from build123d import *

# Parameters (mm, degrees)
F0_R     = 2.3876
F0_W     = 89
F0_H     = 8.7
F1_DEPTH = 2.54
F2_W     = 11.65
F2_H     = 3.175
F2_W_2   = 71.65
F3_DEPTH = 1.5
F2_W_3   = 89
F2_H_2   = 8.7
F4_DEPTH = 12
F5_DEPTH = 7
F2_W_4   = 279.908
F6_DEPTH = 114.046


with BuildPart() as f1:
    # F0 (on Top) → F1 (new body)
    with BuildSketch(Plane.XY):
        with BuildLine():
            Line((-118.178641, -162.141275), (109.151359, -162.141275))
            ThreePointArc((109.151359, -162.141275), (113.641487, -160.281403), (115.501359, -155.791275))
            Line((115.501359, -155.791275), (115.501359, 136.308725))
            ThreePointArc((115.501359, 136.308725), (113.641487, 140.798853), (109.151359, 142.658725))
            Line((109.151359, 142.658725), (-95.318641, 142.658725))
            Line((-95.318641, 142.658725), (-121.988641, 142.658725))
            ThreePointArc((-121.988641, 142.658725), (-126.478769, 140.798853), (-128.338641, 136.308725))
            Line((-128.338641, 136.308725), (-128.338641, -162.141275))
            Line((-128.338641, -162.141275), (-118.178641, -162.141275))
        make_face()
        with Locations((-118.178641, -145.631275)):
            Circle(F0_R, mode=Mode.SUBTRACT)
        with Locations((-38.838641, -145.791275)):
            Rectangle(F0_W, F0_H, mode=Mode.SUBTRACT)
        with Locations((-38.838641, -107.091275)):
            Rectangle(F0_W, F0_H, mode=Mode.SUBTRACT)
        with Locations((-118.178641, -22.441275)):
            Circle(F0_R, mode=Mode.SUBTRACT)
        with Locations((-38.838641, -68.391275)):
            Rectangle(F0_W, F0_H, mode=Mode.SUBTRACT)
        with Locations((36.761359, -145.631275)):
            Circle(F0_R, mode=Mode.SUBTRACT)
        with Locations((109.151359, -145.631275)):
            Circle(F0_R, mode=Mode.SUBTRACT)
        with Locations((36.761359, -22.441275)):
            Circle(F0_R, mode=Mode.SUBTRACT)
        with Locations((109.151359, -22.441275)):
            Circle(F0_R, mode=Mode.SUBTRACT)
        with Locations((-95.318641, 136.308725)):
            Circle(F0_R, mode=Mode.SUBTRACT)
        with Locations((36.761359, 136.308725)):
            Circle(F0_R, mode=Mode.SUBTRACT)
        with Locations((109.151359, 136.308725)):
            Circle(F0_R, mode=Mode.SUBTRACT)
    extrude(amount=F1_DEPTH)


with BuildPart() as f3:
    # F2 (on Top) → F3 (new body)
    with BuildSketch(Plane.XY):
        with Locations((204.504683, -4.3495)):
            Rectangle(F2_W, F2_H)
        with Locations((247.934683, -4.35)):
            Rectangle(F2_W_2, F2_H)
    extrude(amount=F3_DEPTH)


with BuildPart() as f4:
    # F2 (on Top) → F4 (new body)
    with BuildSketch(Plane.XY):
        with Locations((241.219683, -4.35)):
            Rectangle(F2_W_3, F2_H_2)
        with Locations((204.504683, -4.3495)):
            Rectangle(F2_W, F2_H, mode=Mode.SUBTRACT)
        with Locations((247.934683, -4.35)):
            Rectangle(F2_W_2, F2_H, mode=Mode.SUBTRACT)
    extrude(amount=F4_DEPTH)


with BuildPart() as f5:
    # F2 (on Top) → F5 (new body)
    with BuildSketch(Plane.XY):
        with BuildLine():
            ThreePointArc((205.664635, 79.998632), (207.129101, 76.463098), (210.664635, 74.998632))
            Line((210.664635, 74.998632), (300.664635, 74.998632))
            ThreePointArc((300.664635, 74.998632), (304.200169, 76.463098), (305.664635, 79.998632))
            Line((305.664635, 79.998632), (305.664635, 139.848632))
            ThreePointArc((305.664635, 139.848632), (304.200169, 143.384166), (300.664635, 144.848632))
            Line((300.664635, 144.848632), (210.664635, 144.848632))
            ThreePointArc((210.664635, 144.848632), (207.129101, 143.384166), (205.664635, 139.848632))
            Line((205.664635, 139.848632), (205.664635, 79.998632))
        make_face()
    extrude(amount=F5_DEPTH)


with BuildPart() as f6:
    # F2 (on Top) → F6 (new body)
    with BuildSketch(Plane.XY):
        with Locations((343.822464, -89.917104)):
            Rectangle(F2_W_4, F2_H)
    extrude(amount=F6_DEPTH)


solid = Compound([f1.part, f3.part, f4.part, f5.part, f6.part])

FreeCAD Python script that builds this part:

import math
import FreeCAD as App
import Part
import Sketcher

V = App.Vector
Q = App.Units.Quantity

doc = App.newDocument("Part")
body = doc.addObject("PartDesign::Body", "Body")

sketch1 = body.newObject("Sketcher::SketchObject", "Sketch")
sketch1.AttachmentSupport = (doc.getObject("XY_Plane"), [""])
sketch1.MapMode = "FlatFace"
sketch1.addGeometry(Part.ArcOfCircle(Part.Circle(V(109.2, -155.8, 0), V(0, 0, 1), 6.4), math.radians(-90), math.radians(0)), False)
sketch1.addGeometry(Part.LineSegment(V(115.5, -155.8, 0), V(115.5, 136.3, 0)), False)
sketch1.addGeometry(Part.ArcOfCircle(Part.Circle(V(109.2, 136.3, 0), V(0, 0, 1), 6.4), math.radians(0), math.radians(90)), False)
sketch1.addGeometry(Part.LineSegment(V(109.2, 142.7, 0), V(-122, 142.7, 0)), False)
sketch1.addGeometry(Part.ArcOfCircle(Part.Circle(V(-122, 136.3, 0), V(0, 0, 1), 6.4), math.radians(90), math.radians(180)), False)
sketch1.addGeometry(Part.LineSegment(V(-128.3, 136.3, 0), V(-128.3, -162.1, 0)), False)
sketch1.addGeometry(Part.LineSegment(V(-128.3, -162.1, 0), V(109.2, -162.1, 0)), False)
sketch1.addGeometry(Part.Circle(V(-118.2, -145.6, 0), V(0, 0, 1), 2.4), False)
sketch1.addGeometry(Part.LineSegment(V(5.7, -150.1, 0), V(-83.3, -150.1, 0)), False)
sketch1.addGeometry(Part.LineSegment(V(-83.3, -150.1, 0), V(-83.3, -141.4, 0)), False)
sketch1.addGeometry(Part.LineSegment(V(-83.3, -141.4, 0), V(5.7, -141.4, 0)), False)
sketch1.addGeometry(Part.LineSegment(V(5.7, -141.4, 0), V(5.7, -150.1, 0)), False)
sketch1.addGeometry(Part.LineSegment(V(5.7, -111.4, 0), V(-83.3, -111.4, 0)), False)
sketch1.addGeometry(Part.LineSegment(V(-83.3, -111.4, 0), V(-83.3, -102.7, 0)), False)
sketch1.addGeometry(Part.LineSegment(V(-83.3, -102.7, 0), V(5.7, -102.7, 0)), False)
sketch1.addGeometry(Part.LineSegment(V(5.7, -102.7, 0), V(5.7, -111.4, 0)), False)
sketch1.addGeometry(Part.Circle(V(-118.2, -22.4, 0), V(0, 0, 1), 2.4), False)
sketch1.addGeometry(Part.LineSegment(V(5.7, -72.7, 0), V(-83.3, -72.7, 0)), False)
sketch1.addGeometry(Part.LineSegment(V(-83.3, -72.7, 0), V(-83.3, -64, 0)), False)
sketch1.addGeometry(Part.LineSegment(V(-83.3, -64, 0), V(5.7, -64, 0)), False)
sketch1.addGeometry(Part.LineSegment(V(5.7, -64, 0), V(5.7, -72.7, 0)), False)
sketch1.addGeometry(Part.Circle(V(36.8, -145.6, 0), V(0, 0, 1), 2.4), False)
sketch1.addGeometry(Part.Circle(V(109.2, -145.6, 0), V(0, 0, 1), 2.4), False)
sketch1.addGeometry(Part.Circle(V(36.8, -22.4, 0), V(0, 0, 1), 2.4), False)
sketch1.addGeometry(Part.Circle(V(109.2, -22.4, 0), V(0, 0, 1), 2.4), False)
sketch1.addGeometry(Part.Circle(V(-95.3, 136.3, 0), V(0, 0, 1), 2.4), False)
sketch1.addGeometry(Part.Circle(V(36.8, 136.3, 0), V(0, 0, 1), 2.4), False)
sketch1.addGeometry(Part.Circle(V(109.2, 136.3, 0), V(0, 0, 1), 2.4), False)
sketch1.addConstraint(Sketcher.Constraint("Tangent", 0, 2, 1, 1))
sketch1.addConstraint(Sketcher.Constraint("Tangent", 1, 2, 2, 1))
sketch1.addConstraint(Sketcher.Constraint("Tangent", 2, 2, 3, 1))
sketch1.addConstraint(Sketcher.Constraint("Tangent", 3, 2, 4, 1))
sketch1.addConstraint(Sketcher.Constraint("Tangent", 4, 2, 5, 1))
sketch1.addConstraint(Sketcher.Constraint("Coincident", 5, 2, 6, 1))
sketch1.addConstraint(Sketcher.Constraint("Tangent", 6, 2, 0, 1))
sketch1.addConstraint(Sketcher.Constraint("Coincident", 8, 2, 9, 1))
sketch1.addConstraint(Sketcher.Constraint("Coincident", 9, 2, 10, 1))
sketch1.addConstraint(Sketcher.Constraint("Coincident", 10, 2, 11, 1))
sketch1.addConstraint(Sketcher.Constraint("Coincident", 11, 2, 8, 1))
sketch1.addConstraint(Sketcher.Constraint("Coincident", 12, 2, 13, 1))
sketch1.addConstraint(Sketcher.Constraint("Coincident", 13, 2, 14, 1))
sketch1.addConstraint(Sketcher.Constraint("Coincident", 14, 2, 15, 1))
sketch1.addConstraint(Sketcher.Constraint("Coincident", 15, 2, 12, 1))
sketch1.addConstraint(Sketcher.Constraint("Coincident", 17, 2, 18, 1))
sketch1.addConstraint(Sketcher.Constraint("Coincident", 18, 2, 19, 1))
sketch1.addConstraint(Sketcher.Constraint("Coincident", 19, 2, 20, 1))
sketch1.addConstraint(Sketcher.Constraint("Coincident", 20, 2, 17, 1))
sketch1.addConstraint(Sketcher.Constraint("Vertical", 1))
sketch1.addConstraint(Sketcher.Constraint("Horizontal", 3))
sketch1.addConstraint(Sketcher.Constraint("Vertical", 5))
sketch1.addConstraint(Sketcher.Constraint("Horizontal", 6))
sketch1.addConstraint(Sketcher.Constraint("Horizontal", 8))
sketch1.addConstraint(Sketcher.Constraint("Vertical", 9))
sketch1.addConstraint(Sketcher.Constraint("Horizontal", 10))
sketch1.addConstraint(Sketcher.Constraint("Vertical", 11))
sketch1.addConstraint(Sketcher.Constraint("Horizontal", 12))
sketch1.addConstraint(Sketcher.Constraint("Vertical", 13))
sketch1.addConstraint(Sketcher.Constraint("Horizontal", 14))
sketch1.addConstraint(Sketcher.Constraint("Vertical", 15))
sketch1.addConstraint(Sketcher.Constraint("Horizontal", 17))
sketch1.addConstraint(Sketcher.Constraint("Vertical", 18))
sketch1.addConstraint(Sketcher.Constraint("Horizontal", 19))
sketch1.addConstraint(Sketcher.Constraint("Vertical", 20))
sketch1.addConstraint(Sketcher.Constraint("Coincident", 27, 3, 2, 3))
sketch1.addConstraint(Sketcher.Constraint("Equal", 0, 2))
sketch1.addConstraint(Sketcher.Constraint("Equal", 2, 4))
sketch1.addConstraint(Sketcher.Constraint("Equal", 7, 16))
sketch1.addConstraint(Sketcher.Constraint("Equal", 16, 21))
sketch1.addConstraint(Sketcher.Constraint("Equal", 21, 22))
sketch1.addConstraint(Sketcher.Constraint("Equal", 22, 23))
sketch1.addConstraint(Sketcher.Constraint("Equal", 23, 24))
sketch1.addConstraint(Sketcher.Constraint("Equal", 24, 25))
sketch1.addConstraint(Sketcher.Constraint("Equal", 25, 26))
sketch1.addConstraint(Sketcher.Constraint("Equal", 26, 27))
sketch1.addConstraint(Sketcher.Constraint("Horizontal", 7, 3, 21, 3))
sketch1.addConstraint(Sketcher.Constraint("Horizontal", 21, 3, 22, 3))
sketch1.addConstraint(Sketcher.Constraint("Horizontal", 16, 3, 23, 3))
sketch1.addConstraint(Sketcher.Constraint("Horizontal", 23, 3, 24, 3))
sketch1.addConstraint(Sketcher.Constraint("Horizontal", 4, 3, 25, 3))
sketch1.addConstraint(Sketcher.Constraint("Horizontal", 25, 3, 26, 3))
sketch1.addConstraint(Sketcher.Constraint("Vertical", 7, 3, 16, 3))
sketch1.addConstraint(Sketcher.Constraint("Vertical", 2, 3, 22, 3))
sketch1.addConstraint(Sketcher.Constraint("Vertical", 21, 3, 23, 3))
sketch1.addConstraint(Sketcher.Constraint("Vertical", 22, 3, 24, 3))
sketch1.addConstraint(Sketcher.Constraint("Vertical", 23, 3, 26, 3))
sketch1.addConstraint(Sketcher.Constraint("Vertical", 9, 2, 12, 2))
sketch1.addConstraint(Sketcher.Constraint("Vertical", 11, 2, 14, 2))
sketch1.addConstraint(Sketcher.Constraint("Vertical", 13, 2, 17, 2))
sketch1.addConstraint(Sketcher.Constraint("Vertical", 15, 2, 19, 2))
sketch1.addConstraint(Sketcher.Constraint("Equal", 11, 13))
sketch1.addConstraint(Sketcher.Constraint("Equal", 15, 18))
sketch1.addConstraint(Sketcher.Constraint("Radius", 0, Q("0.25 in")))
sketch1.addConstraint(Sketcher.Constraint("Diameter", 7, Q("0.188 in")))
sketch1.addConstraint(Sketcher.Constraint("DistanceX", 3, 2, 3, 1, Q("9.1 in")))
sketch1.addConstraint(Sketcher.Constraint("DistanceY", 1, 1, 1, 2, Q("11.5 in")))
sketch1.addConstraint(Sketcher.Constraint("DistanceY", 0, 3, 7, 3, Q("0.4 in")))
sketch1.addConstraint(Sketcher.Constraint("DistanceX", 7, 3, 21, 3, Q("6.1 in")))
sketch1.addConstraint(Sketcher.Constraint("DistanceX", 16, 3, 25, 3, Q("0.9 in")))
sketch1.addConstraint(Sketcher.Constraint("DistanceX", 21, 3, 0, 2, Q("3.1 in")))
sketch1.addConstraint(Sketcher.Constraint("DistanceY", 24, 3, 2, 2, Q("6.5 in")))
sketch1.addConstraint(Sketcher.Constraint("DistanceX", 8, 2, 8, 1, Q("89 mm")))
sketch1.addConstraint(Sketcher.Constraint("DistanceY", 9, 1, 9, 2, Q("8.7 mm")))
sketch1.addConstraint(Sketcher.Constraint("DistanceX", 7, 3, 8, 2, Q("34.84 mm")))
sketch1.addConstraint(Sketcher.Constraint("DistanceY", 8, 2, 7, 3, Q("4.51 mm")))
sketch1.addConstraint(Sketcher.Constraint("DistanceY", 9, 2, 12, 2, Q("30 mm")))
sketch1.addConstraint(Sketcher.Constraint("DistanceY", 13, 2, 17, 2, Q("30 mm")))
sketch1.addConstraint(Sketcher.Constraint("DistanceX", -1, 1, 0, 3, Q("109.151359 mm")))
sketch1.addConstraint(Sketcher.Constraint("DistanceY", 0, 3, -1, 1, Q("155.791275 mm")))
pad1 = body.newObject("PartDesign::Pad", "Pad")
pad1.Profile = sketch1
pad1.Length = Q("0.1 in")
body2 = doc.addObject("PartDesign::Body", "Body001")
body2.AllowCompound = True

sketch2 = body2.newObject("Sketcher::SketchObject", "Sketch001")
sketch2.AttachmentSupport = (doc.getObject("XY_Plane001"), [""])
sketch2.MapMode = "FlatFace"
sketch2.addGeometry(Part.LineSegment(V(198.7, -2.8, 0), V(198.7, -5.9, 0)), False)
sketch2.addGeometry(Part.LineSegment(V(198.7, -5.9, 0), V(210.3, -5.9, 0)), False)
sketch2.addGeometry(Part.LineSegment(V(210.3, -5.9, 0), V(210.3, -2.8, 0)), False)
sketch2.addGeometry(Part.LineSegment(V(210.3, -2.8, 0), V(198.7, -2.8, 0)), False)
sketch2.addGeometry(Part.LineSegment(V(212.1, -2.8, 0), V(212.1, -5.9, 0)), False)
sketch2.addGeometry(Part.LineSegment(V(212.1, -5.9, 0), V(283.8, -5.9, 0)), False)
sketch2.addGeometry(Part.LineSegment(V(283.8, -5.9, 0), V(283.8, -2.8, 0)), False)
sketch2.addGeometry(Part.LineSegment(V(283.8, -2.8, 0), V(212.1, -2.8, 0)), False)
sketch2.addConstraint(Sketcher.Constraint("Coincident", 0, 2, 1, 1))
sketch2.addConstraint(Sketcher.Constraint("Coincident", 1, 2, 2, 1))
sketch2.addConstraint(Sketcher.Constraint("Coincident", 2, 2, 3, 1))
sketch2.addConstraint(Sketcher.Constraint("Coincident", 3, 2, 0, 1))
sketch2.addConstraint(Sketcher.Constraint("Coincident", 4, 2, 5, 1))
sketch2.addConstraint(Sketcher.Constraint("Coincident", 5, 2, 6, 1))
sketch2.addConstraint(Sketcher.Constraint("Coincident", 6, 2, 7, 1))
sketch2.addConstraint(Sketcher.Constraint("Coincident", 7, 2, 4, 1))
sketch2.addConstraint(Sketcher.Constraint("Vertical", 0))
sketch2.addConstraint(Sketcher.Constraint("Horizontal", 1))
sketch2.addConstraint(Sketcher.Constraint("Vertical", 2))
sketch2.addConstraint(Sketcher.Constraint("Horizontal", 3))
sketch2.addConstraint(Sketcher.Constraint("Vertical", 4))
sketch2.addConstraint(Sketcher.Constraint("Horizontal", 5))
sketch2.addConstraint(Sketcher.Constraint("Vertical", 6))
sketch2.addConstraint(Sketcher.Constraint("Horizontal", 7))
sketch2.addConstraint(Sketcher.Constraint("Equal", 2, 4))
sketch2.addConstraint(Sketcher.Constraint("DistanceY", 0, 2, 0, 1, Q("0.125 in")))
sketch2.addConstraint(Sketcher.Constraint("DistanceX", 1, 1, 1, 2, Q("11.65 mm")))
sketch2.addConstraint(Sketcher.Constraint("DistanceX", 5, 1, 5, 2, Q("71.65 mm")))
sketch2.addConstraint(Sketcher.Constraint("DistanceY", 0, 2, -1, 1, Q("5.937 mm")))
sketch2.addConstraint(Sketcher.Constraint("DistanceY", 4, 2, -1, 1, Q("5.9375 mm")))
sketch2.addConstraint(Sketcher.Constraint("DistanceX", 1, 2, 4, 2, Q("1.78 mm")))
sketch2.addConstraint(Sketcher.Constraint("DistanceX", -1, 1, 0, 2, Q("198.679683 mm")))
pad2 = body2.newObject("PartDesign::Pad", "Pad001")
pad2.Profile = sketch2
pad2.Length = 1.5
body3 = doc.addObject("PartDesign::Body", "Body002")

sketch3 = body3.newObject("Sketcher::SketchObject", "Sketch002")
sketch3.AttachmentSupport = (doc.getObject("XY_Plane002"), [""])
sketch3.MapMode = "FlatFace"
sketch3.addGeometry(Part.LineSegment(V(196.7, 0, 0), V(196.7, -8.7, 0)), False)
sketch3.addGeometry(Part.LineSegment(V(196.7, -8.7, 0), V(285.7, -8.7, 0)), False)
sketch3.addGeometry(Part.LineSegment(V(285.7, -8.7, 0), V(285.7, 0, 0)), False)
sketch3.addGeometry(Part.LineSegment(V(285.7, 0, 0), V(196.7, 0, 0)), False)
sketch3.addGeometry(Part.LineSegment(V(283.8, -5.9, 0), V(212.1, -5.9, 0)), False)
sketch3.addGeometry(Part.LineSegment(V(212.1, -5.9, 0), V(212.1, -2.8, 0)), False)
sketch3.addGeometry(Part.LineSegment(V(212.1, -2.8, 0), V(283.8, -2.8, 0)), False)
sketch3.addGeometry(Part.LineSegment(V(283.8, -2.8, 0), V(283.8, -5.9, 0)), False)
sketch3.addGeometry(Part.LineSegment(V(210.3, -5.9, 0), V(198.7, -5.9, 0)), False)
sketch3.addGeometry(Part.LineSegment(V(198.7, -5.9, 0), V(198.7, -2.8, 0)), False)
sketch3.addGeometry(Part.LineSegment(V(198.7, -2.8, 0), V(210.3, -2.8, 0)), False)
sketch3.addGeometry(Part.LineSegment(V(210.3, -2.8, 0), V(210.3, -5.9, 0)), False)
sketch3.addConstraint(Sketcher.Constraint("Coincident", 0, 2, 1, 1))
sketch3.addConstraint(Sketcher.Constraint("Coincident", 1, 2, 2, 1))
sketch3.addConstraint(Sketcher.Constraint("Coincident", 2, 2, 3, 1))
sketch3.addConstraint(Sketcher.Constraint("Coincident", 3, 2, 0, 1))
sketch3.addConstraint(Sketcher.Constraint("Coincident", 4, 2, 5, 1))
sketch3.addConstraint(Sketcher.Constraint("Coincident", 5, 2, 6, 1))
sketch3.addConstraint(Sketcher.Constraint("Coincident", 6, 2, 7, 1))
sketch3.addConstraint(Sketcher.Constraint("Coincident", 7, 2, 4, 1))
sketch3.addConstraint(Sketcher.Constraint("Coincident", 8, 2, 9, 1))
sketch3.addConstraint(Sketcher.Constraint("Coincident", 9, 2, 10, 1))
sketch3.addConstraint(Sketcher.Constraint("Coincident", 10, 2, 11, 1))
sketch3.addConstraint(Sketcher.Constraint("Coincident", 11, 2, 8, 1))
sketch3.addConstraint(Sketcher.Constraint("Vertical", 0))
sketch3.addConstraint(Sketcher.Constraint("Horizontal", 1))
sketch3.addConstraint(Sketcher.Constraint("Vertical", 2))
sketch3.addConstraint(Sketcher.Constraint("Horizontal", 3))
sketch3.addConstraint(Sketcher.Constraint("Horizontal", 4))
sketch3.addConstraint(Sketcher.Constraint("Vertical", 5))
sketch3.addConstraint(Sketcher.Constraint("Horizontal", 6))
sketch3.addConstraint(Sketcher.Constraint("Vertical", 7))
sketch3.addConstraint(Sketcher.Constraint("Horizontal", 8))
sketch3.addConstraint(Sketcher.Constraint("Vertical", 9))
sketch3.addConstraint(Sketcher.Constraint("Horizontal", 10))
sketch3.addConstraint(Sketcher.Constraint("Vertical", 11))
sketch3.addConstraint(Sketcher.Constraint("PointOnObject", 2, 2, -1))
sketch3.addConstraint(Sketcher.Constraint("Equal", 7, 9))
sketch3.addConstraint(Sketcher.Constraint("DistanceY", 5, 1, 5, 2, Q("0.125 in")))
sketch3.addConstraint(Sketcher.Constraint("DistanceX", 1, 1, 1, 2, Q("89 mm")))
sketch3.addConstraint(Sketcher.Constraint("DistanceX", 4, 2, 4, 1, Q("71.65 mm")))
sketch3.addConstraint(Sketcher.Constraint("DistanceX", 8, 2, 8, 1, Q("11.65 mm")))
sketch3.addConstraint(Sketcher.Constraint("DistanceY", 0, 2, 0, 1, Q("8.7 mm")))
sketch3.addConstraint(Sketcher.Constraint("DistanceY", 4, 2, -1, 1, Q("5.9375 mm")))
sketch3.addConstraint(Sketcher.Constraint("DistanceY", 8, 2, -1, 1, Q("5.937 mm")))
sketch3.addConstraint(Sketcher.Constraint("DistanceX", 0, 2, 4, 2, Q("15.39 mm")))
sketch3.addConstraint(Sketcher.Constraint("DistanceX", 0, 2, 8, 2, Q("1.96 mm")))
sketch3.addConstraint(Sketcher.Constraint("DistanceX", -1, 1, 0, 2, Q("196.719683 mm")))
pad3 = body3.newObject("PartDesign::Pad", "Pad002")
pad3.Profile = sketch3
pad3.Length = 12
body4 = doc.addObject("PartDesign::Body", "Body003")

sketch4 = body4.newObject("Sketcher::SketchObject", "Sketch003")
sketch4.AttachmentSupport = (doc.getObject("XY_Plane003"), [""])
sketch4.MapMode = "FlatFace"
sketch4.addGeometry(Part.ArcOfCircle(Part.Circle(V(210.7, 80, 0), V(0, 0, 1), 5), math.radians(180), math.radians(270)), False)
sketch4.addGeometry(Part.LineSegment(V(210.7, 75, 0), V(300.7, 75, 0)), False)
sketch4.addGeometry(Part.ArcOfCircle(Part.Circle(V(300.7, 80, 0), V(0, 0, 1), 5), math.radians(-90), math.radians(0)), False)
sketch4.addGeometry(Part.LineSegment(V(305.7, 80, 0), V(305.7, 139.8, 0)), False)
sketch4.addGeometry(Part.ArcOfCircle(Part.Circle(V(300.7, 139.8, 0), V(0, 0, 1), 5), math.radians(0), math.radians(90)), False)
sketch4.addGeometry(Part.LineSegment(V(300.7, 144.8, 0), V(210.7, 144.8, 0)), False)
sketch4.addGeometry(Part.ArcOfCircle(Part.Circle(V(210.7, 139.8, 0), V(0, 0, 1), 5), math.radians(90), math.radians(180)), False)
sketch4.addGeometry(Part.LineSegment(V(205.7, 139.8, 0), V(205.7, 80, 0)), False)
sketch4.addConstraint(Sketcher.Constraint("Tangent", 0, 2, 1, 1))
sketch4.addConstraint(Sketcher.Constraint("Tangent", 1, 2, 2, 1))
sketch4.addConstraint(Sketcher.Constraint("Tangent", 2, 2, 3, 1))
sketch4.addConstraint(Sketcher.Constraint("Tangent", 3, 2, 4, 1))
sketch4.addConstraint(Sketcher.Constraint("Tangent", 4, 2, 5, 1))
sketch4.addConstraint(Sketcher.Constraint("Tangent", 5, 2, 6, 1))
sketch4.addConstraint(Sketcher.Constraint("Tangent", 6, 2, 7, 1))
sketch4.addConstraint(Sketcher.Constraint("Tangent", 7, 2, 0, 1))
sketch4.addConstraint(Sketcher.Constraint("Horizontal", 1))
sketch4.addConstraint(Sketcher.Constraint("Vertical", 3))
sketch4.addConstraint(Sketcher.Constraint("Horizontal", 5))
sketch4.addConstraint(Sketcher.Constraint("Vertical", 7))
sketch4.addConstraint(Sketcher.Constraint("Equal", 0, 2))
sketch4.addConstraint(Sketcher.Constraint("Equal", 2, 4))
sketch4.addConstraint(Sketcher.Constraint("Equal", 4, 6))
sketch4.addConstraint(Sketcher.Constraint("Radius", 0, Q("5 mm")))
sketch4.addConstraint(Sketcher.Constraint("DistanceY", 1, 2, 4, 2, Q("2.75 in")))
sketch4.addConstraint(Sketcher.Constraint("DistanceX", 1, 1, 1, 2, Q("90 mm")))
sketch4.addConstraint(Sketcher.Constraint("DistanceY", -1, 1, 0, 3, Q("79.998632 mm")))
sketch4.addConstraint(Sketcher.Constraint("DistanceX", -1, 1, 0, 3, Q("210.664635 mm")))
pad4 = body4.newObject("PartDesign::Pad", "Pad003")
pad4.Profile = sketch4
pad4.Length = 7
body5 = doc.addObject("PartDesign::Body", "Body004")

sketch5 = body5.newObject("Sketcher::SketchObject", "Sketch004")
sketch5.AttachmentSupport = (doc.getObject("XY_Plane004"), [""])
sketch5.MapMode = "FlatFace"
sketch5.addGeometry(Part.LineSegment(V(203.9, -88.3, 0), V(203.9, -91.5, 0)), False)
sketch5.addGeometry(Part.LineSegment(V(203.9, -91.5, 0), V(483.8, -91.5, 0)), False)
sketch5.addGeometry(Part.LineSegment(V(483.8, -91.5, 0), V(483.8, -88.3, 0)), False)
sketch5.addGeometry(Part.LineSegment(V(483.8, -88.3, 0), V(203.9, -88.3, 0)), False)
sketch5.addConstraint(Sketcher.Constraint("Coincident", 0, 2, 1, 1))
sketch5.addConstraint(Sketcher.Constraint("Coincident", 1, 2, 2, 1))
sketch5.addConstraint(Sketcher.Constraint("Coincident", 2, 2, 3, 1))
sketch5.addConstraint(Sketcher.Constraint("Coincident", 3, 2, 0, 1))
sketch5.addConstraint(Sketcher.Constraint("Vertical", 0))
sketch5.addConstraint(Sketcher.Constraint("Horizontal", 1))
sketch5.addConstraint(Sketcher.Constraint("Vertical", 2))
sketch5.addConstraint(Sketcher.Constraint("Horizontal", 3))
sketch5.addConstraint(Sketcher.Constraint("DistanceX", 1, 1, 1, 2, Q("11.02 in")))
sketch5.addConstraint(Sketcher.Constraint("DistanceY", 0, 2, 0, 1, Q("0.125 in")))
sketch5.addConstraint(Sketcher.Constraint("DistanceX", -1, 1, 0, 2, Q("203.868464 mm")))
sketch5.addConstraint(Sketcher.Constraint("DistanceY", 0, 2, -1, 1, Q("91.504604 mm")))
pad5 = body5.newObject("PartDesign::Pad", "Pad004")
pad5.Profile = sketch5
pad5.Length = Q("4.49 in")

doc.recompute()
